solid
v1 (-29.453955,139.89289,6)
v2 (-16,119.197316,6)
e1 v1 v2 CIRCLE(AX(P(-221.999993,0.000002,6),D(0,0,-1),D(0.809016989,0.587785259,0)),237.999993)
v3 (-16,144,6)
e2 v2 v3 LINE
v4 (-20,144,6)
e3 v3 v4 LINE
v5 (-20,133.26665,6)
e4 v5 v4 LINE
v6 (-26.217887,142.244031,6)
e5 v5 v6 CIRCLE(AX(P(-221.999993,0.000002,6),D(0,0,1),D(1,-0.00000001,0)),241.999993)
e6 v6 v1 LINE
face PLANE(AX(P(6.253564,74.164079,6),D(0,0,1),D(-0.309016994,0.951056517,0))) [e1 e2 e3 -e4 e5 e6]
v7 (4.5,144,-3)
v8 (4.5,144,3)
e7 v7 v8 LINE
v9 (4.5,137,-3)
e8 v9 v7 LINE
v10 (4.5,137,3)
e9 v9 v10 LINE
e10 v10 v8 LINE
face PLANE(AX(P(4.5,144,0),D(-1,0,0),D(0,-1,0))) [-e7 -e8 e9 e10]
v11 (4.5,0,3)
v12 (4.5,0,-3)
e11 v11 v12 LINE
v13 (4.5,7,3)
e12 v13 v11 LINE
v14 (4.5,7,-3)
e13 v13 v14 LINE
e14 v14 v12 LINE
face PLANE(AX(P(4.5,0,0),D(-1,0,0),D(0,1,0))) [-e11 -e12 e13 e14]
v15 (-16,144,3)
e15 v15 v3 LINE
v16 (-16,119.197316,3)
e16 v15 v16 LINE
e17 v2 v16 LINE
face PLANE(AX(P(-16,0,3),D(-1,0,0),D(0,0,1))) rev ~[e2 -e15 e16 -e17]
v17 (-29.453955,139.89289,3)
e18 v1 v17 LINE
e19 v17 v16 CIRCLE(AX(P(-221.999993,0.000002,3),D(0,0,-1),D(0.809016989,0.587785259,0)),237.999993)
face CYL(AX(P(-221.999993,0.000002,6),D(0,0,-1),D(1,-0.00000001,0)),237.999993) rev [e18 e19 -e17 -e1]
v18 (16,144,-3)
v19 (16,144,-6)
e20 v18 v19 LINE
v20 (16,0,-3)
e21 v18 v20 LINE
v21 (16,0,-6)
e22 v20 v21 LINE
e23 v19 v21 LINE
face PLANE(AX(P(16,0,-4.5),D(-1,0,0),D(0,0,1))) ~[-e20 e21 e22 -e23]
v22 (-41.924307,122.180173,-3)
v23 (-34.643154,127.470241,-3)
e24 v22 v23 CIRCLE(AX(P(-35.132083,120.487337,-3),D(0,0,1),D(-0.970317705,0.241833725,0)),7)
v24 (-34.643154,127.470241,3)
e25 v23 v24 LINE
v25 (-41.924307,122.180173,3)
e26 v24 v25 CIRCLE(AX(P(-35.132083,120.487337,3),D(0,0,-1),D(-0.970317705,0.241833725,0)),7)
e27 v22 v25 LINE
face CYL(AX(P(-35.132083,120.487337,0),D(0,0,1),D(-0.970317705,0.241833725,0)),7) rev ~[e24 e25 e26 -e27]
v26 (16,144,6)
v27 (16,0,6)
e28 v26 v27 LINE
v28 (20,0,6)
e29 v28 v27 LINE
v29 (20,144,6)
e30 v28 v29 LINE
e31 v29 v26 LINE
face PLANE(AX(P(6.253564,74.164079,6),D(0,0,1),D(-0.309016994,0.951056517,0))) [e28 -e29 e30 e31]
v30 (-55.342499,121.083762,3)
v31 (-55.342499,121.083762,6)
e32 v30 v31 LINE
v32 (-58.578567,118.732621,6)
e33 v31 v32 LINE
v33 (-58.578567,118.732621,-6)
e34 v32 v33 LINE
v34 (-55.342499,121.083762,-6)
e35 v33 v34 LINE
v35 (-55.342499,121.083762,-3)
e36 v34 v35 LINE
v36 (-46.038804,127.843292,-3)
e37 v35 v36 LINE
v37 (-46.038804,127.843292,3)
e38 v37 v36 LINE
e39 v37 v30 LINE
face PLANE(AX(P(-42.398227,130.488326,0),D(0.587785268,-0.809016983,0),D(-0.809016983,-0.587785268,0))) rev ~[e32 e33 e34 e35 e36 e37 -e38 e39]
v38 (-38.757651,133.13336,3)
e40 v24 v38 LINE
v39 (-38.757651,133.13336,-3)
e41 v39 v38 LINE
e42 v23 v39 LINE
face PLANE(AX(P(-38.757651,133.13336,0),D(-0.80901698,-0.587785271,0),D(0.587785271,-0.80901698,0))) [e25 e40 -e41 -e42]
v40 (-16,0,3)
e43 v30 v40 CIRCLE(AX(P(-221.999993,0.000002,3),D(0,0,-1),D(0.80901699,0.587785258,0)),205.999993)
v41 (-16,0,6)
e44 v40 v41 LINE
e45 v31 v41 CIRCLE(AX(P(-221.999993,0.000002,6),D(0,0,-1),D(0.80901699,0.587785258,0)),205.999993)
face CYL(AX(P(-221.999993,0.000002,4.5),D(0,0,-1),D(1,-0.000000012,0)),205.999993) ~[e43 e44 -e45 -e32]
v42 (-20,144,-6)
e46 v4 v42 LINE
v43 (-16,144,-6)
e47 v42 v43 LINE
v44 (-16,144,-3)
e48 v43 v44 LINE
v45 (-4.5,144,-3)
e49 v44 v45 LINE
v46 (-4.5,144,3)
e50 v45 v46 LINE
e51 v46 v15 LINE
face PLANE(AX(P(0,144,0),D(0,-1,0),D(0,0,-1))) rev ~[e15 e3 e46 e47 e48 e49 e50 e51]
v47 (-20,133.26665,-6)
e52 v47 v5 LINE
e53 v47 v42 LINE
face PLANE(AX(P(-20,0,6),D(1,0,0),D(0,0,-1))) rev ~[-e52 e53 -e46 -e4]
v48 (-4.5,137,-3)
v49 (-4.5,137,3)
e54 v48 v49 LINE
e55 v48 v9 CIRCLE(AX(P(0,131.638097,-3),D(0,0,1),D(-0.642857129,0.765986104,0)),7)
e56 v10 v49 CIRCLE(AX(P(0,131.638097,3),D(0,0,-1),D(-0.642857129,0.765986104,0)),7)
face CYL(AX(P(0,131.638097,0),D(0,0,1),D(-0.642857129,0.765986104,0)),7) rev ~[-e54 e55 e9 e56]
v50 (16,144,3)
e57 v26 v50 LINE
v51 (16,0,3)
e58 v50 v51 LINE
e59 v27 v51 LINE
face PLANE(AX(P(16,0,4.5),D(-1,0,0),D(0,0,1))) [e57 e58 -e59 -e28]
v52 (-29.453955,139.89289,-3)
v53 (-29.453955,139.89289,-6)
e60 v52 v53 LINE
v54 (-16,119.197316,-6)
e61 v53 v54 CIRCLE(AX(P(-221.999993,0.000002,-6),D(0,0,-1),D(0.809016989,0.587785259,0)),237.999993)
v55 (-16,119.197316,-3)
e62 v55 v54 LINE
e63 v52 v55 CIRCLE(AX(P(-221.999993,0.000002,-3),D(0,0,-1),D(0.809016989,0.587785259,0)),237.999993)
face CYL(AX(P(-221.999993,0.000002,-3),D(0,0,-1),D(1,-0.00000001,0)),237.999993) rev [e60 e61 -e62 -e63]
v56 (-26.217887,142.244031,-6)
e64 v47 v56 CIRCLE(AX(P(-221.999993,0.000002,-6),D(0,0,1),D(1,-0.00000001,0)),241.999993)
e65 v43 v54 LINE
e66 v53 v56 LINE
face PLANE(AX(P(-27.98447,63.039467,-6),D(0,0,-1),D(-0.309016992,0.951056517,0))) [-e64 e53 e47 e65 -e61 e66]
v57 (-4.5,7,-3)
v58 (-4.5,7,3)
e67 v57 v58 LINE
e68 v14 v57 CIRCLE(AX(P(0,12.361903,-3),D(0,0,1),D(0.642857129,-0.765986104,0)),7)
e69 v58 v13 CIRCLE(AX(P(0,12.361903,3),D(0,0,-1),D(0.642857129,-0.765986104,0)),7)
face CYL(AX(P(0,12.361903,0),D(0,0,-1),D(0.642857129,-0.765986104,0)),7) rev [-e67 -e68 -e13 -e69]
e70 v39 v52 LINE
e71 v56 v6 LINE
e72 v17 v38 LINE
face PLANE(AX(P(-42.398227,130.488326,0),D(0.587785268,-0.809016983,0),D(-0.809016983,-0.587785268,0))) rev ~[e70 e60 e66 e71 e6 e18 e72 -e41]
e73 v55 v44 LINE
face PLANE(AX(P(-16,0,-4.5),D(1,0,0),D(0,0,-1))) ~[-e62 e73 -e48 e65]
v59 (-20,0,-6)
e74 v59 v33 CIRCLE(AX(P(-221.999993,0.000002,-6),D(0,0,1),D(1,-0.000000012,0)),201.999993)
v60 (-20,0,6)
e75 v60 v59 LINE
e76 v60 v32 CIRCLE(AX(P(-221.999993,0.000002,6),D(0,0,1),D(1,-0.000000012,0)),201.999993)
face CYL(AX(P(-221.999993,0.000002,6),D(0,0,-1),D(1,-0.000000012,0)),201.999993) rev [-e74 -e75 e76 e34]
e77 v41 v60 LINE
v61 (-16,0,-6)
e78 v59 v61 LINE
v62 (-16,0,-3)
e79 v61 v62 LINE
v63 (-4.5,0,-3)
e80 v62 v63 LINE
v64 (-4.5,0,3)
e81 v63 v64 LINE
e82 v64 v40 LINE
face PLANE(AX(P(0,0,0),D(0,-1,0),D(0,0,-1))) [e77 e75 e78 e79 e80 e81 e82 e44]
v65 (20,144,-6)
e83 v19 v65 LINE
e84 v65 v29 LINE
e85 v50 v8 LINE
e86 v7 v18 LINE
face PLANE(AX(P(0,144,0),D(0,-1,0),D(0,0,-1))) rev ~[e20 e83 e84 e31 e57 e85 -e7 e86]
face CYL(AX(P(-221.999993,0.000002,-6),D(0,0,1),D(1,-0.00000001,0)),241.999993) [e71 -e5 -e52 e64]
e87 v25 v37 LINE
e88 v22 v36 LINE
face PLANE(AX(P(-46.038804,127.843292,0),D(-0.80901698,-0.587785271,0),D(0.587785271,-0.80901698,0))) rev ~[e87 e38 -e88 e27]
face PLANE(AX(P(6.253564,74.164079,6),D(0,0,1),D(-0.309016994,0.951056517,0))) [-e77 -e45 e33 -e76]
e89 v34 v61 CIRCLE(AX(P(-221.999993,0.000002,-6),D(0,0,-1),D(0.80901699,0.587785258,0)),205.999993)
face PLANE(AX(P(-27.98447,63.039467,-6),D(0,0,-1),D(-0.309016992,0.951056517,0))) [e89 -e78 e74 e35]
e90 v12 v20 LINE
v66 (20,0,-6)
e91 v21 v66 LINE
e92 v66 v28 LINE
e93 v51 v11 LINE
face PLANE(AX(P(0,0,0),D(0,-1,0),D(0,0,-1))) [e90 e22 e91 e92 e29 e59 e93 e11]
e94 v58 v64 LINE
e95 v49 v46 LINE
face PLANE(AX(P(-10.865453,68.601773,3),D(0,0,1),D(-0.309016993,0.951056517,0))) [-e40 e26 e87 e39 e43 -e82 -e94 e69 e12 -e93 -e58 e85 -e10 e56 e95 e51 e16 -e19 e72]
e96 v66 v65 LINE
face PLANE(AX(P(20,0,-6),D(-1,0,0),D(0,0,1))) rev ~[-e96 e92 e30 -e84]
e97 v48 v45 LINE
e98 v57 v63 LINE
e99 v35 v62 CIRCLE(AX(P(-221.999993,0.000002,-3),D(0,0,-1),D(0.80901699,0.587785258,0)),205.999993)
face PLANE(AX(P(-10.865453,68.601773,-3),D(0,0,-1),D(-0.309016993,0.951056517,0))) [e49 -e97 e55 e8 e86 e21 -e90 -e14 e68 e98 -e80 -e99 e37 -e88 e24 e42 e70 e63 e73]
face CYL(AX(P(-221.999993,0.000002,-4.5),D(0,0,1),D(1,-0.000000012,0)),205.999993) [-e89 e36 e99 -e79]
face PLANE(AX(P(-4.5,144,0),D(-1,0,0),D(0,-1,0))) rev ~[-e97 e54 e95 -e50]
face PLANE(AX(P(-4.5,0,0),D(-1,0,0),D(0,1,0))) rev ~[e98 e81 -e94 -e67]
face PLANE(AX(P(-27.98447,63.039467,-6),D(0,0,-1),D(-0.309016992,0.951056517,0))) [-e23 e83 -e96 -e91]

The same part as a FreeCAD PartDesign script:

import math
import FreeCAD as App
import Part
import Sketcher
Q = App.Units.Quantity


def add_polygon(sketch, points):
    """Adds a closed chain of lines whose ends are joined by coincident constraints."""
    first, n = sketch.GeometryCount, len(points)
    for a, b in zip(points, points[1:] + points[:1]):
        sketch.addGeometry(Part.LineSegment(App.Vector(*a, 0), App.Vector(*b, 0)), False)
    for i in range(n):
        sketch.addConstraint(Sketcher.Constraint("Coincident", first + i, 2, first + (i + 1) % n, 1))

doc = App.newDocument("Part")
body = doc.addObject("PartDesign::Body", "Body")

sketch1 = doc.addObject("Sketcher::SketchObject", "Sketch")
body.addObject(sketch1)
sketch1.AttachmentSupport = (doc.XZ_Plane, [""])
sketch1.MapMode = "FlatFace"
add_polygon(sketch1, [(-20, 6), (-20, -6), (-16, -6), (-16, -3), (16, -3), (16, -6), (20, -6), (20, 6), (16, 6), (16, 3), (-16, 3), (-16, 6)])
sketch1.addConstraint(Sketcher.Constraint("Vertical", 0))
sketch1.addConstraint(Sketcher.Constraint("Horizontal", 1))
sketch1.addConstraint(Sketcher.Constraint("Vertical", 2))
sketch1.addConstraint(Sketcher.Constraint("Horizontal", 3))
sketch1.addConstraint(Sketcher.Constraint("Vertical", 4))
sketch1.addConstraint(Sketcher.Constraint("Horizontal", 5))
sketch1.addConstraint(Sketcher.Constraint("Vertical", 6))
sketch1.addConstraint(Sketcher.Constraint("Horizontal", 7))
sketch1.addConstraint(Sketcher.Constraint("Vertical", 8))
sketch1.addConstraint(Sketcher.Constraint("Horizontal", 9))
sketch1.addConstraint(Sketcher.Constraint("Vertical", 10))
sketch1.addConstraint(Sketcher.Constraint("Horizontal", 11))
sketch1.addConstraint(Sketcher.Constraint("Symmetric", 0, 2, 6, 2, -1, 1))
sketch1.addConstraint(Sketcher.Constraint("Symmetric", 2, 2, 8, 2, -1, 1))
sketch1.addConstraint(Sketcher.Constraint("Symmetric", 4, 2, 10, 2, -1, 1))
sketch1.addConstraint(Sketcher.Constraint("Symmetric", 1, 2, 4, 2, -2))
sketch1.addConstraint(Sketcher.Constraint("DistanceX", 1, 1, 1, 2, 4.0))
sketch1.addConstraint(Sketcher.Constraint("DistanceX", 3, 1, 3, 2, 32.0))
sketch1.addConstraint(Sketcher.Constraint("DistanceY", 0, 2, 0, 1, 12.0))
sketch1.addConstraint(Sketcher.Constraint("DistanceY", 2, 1, 2, 2, 3.0))

sketch2 = doc.addObject("Sketcher::SketchObject", "Sketch001")
body.addObject(sketch2)
sketch2.AttachmentSupport = (doc.XY_Plane, [""])
sketch2.MapMode = "FlatFace"
sketch2.addGeometry(Part.ArcOfCircle(Part.Circle(App.Vector(-222, 0, 0), App.Vector(0, 0, 1), 222), math.radians(0), math.radians(36)), False)
sketch2.addConstraint(Sketcher.Constraint("Coincident", 0, 1, -1, 1))
sketch2.addConstraint(Sketcher.Constraint("Radius", 0, 221.999993))
sketch2.addConstraint(Sketcher.Constraint("DistanceX", 0, 2, -1, 1, 42.398227))
sketch2.addConstraint(Sketcher.Constraint("DistanceY", -1, 1, 0, 2, 130.488326))
doc.recompute()

additivepipe = doc.addObject("PartDesign::AdditivePipe", "AdditivePipe")
body.addObject(additivepipe)
additivepipe.Profile = sketch1
additivepipe.Spine = (sketch2, ["Edge1"])

sketch3 = doc.addObject("Sketcher::SketchObject", "Sketch002")
body.addObject(sketch3)
sketch3.AttachmentSupport = (doc.XZ_Plane, [""])
sketch3.MapMode = "FlatFace"
add_polygon(sketch3, [(-20, 6), (-20, -6), (-16, -6), (-16, -3), (16, -3), (16, -6), (20, -6), (20, 6), (16, 6), (16, 3), (-16, 3), (-16, 6)])
sketch3.addConstraint(Sketcher.Constraint("Vertical", 0))
sketch3.addConstraint(Sketcher.Constraint("Horizontal", 1))
sketch3.addConstraint(Sketcher.Constraint("Vertical", 2))
sketch3.addConstraint(Sketcher.Constraint("Horizontal", 3))
sketch3.addConstraint(Sketcher.Constraint("Vertical", 4))
sketch3.addConstraint(Sketcher.Constraint("Horizontal", 5))
sketch3.addConstraint(Sketcher.Constraint("Vertical", 6))
sketch3.addConstraint(Sketcher.Constraint("Horizontal", 7))
sketch3.addConstraint(Sketcher.Constraint("Vertical", 8))
sketch3.addConstraint(Sketcher.Constraint("Horizontal", 9))
sketch3.addConstraint(Sketcher.Constraint("Vertical", 10))
sketch3.addConstraint(Sketcher.Constraint("Horizontal", 11))
sketch3.addConstraint(Sketcher.Constraint("Symmetric", 0, 2, 6, 2, -1, 1))
sketch3.addConstraint(Sketcher.Constraint("Symmetric", 2, 2, 8, 2, -1, 1))
sketch3.addConstraint(Sketcher.Constraint("Symmetric", 4, 2, 10, 2, -1, 1))
sketch3.addConstraint(Sketcher.Constraint("Symmetric", 1, 2, 4, 2, -2))
sketch3.addConstraint(Sketcher.Constraint("DistanceX", 1, 1, 1, 2, 4.0))
sketch3.addConstraint(Sketcher.Constraint("DistanceX", 3, 1, 3, 2, 32.0))
sketch3.addConstraint(Sketcher.Constraint("DistanceY", 0, 2, 0, 1, 12.0))
sketch3.addConstraint(Sketcher.Constraint("DistanceY", 2, 1, 2, 2, 3.0))

sketch4 = doc.addObject("Sketcher::SketchObject", "Sketch003")
body.addObject(sketch4)
sketch4.AttachmentSupport = (doc.XY_Plane, [""])
sketch4.MapMode = "FlatFace"
sketch4.addGeometry(Part.LineSegment(App.Vector(0, 0, 0), App.Vector(0, 144, 0)), False)
sketch4.addConstraint(Sketcher.Constraint("Vertical", 0))
sketch4.addConstraint(Sketcher.Constraint("Coincident", 0, 1, -1, 1))
sketch4.addConstraint(Sketcher.Constraint("DistanceY", 0, 1, 0, 2, 144.0))
doc.recompute()

additivepipe2 = doc.addObject("PartDesign::AdditivePipe", "AdditivePipe001")
body.addObject(additivepipe2)
additivepipe2.Profile = sketch3
additivepipe2.Spine = (sketch4, ["Edge1"])

sketch5 = doc.addObject("Sketcher::SketchObject", "Sketch004")
body.addObject(sketch5)
sketch5.AttachmentSupport = (doc.XZ_Plane, [""])
sketch5.MapMode = "FlatFace"
add_polygon(sketch5, [(-16, 6), (-16, 3), (16, 3), (16, 6)])
sketch5.addConstraint(Sketcher.Constraint("Vertical", 0))
sketch5.addConstraint(Sketcher.Constraint("Horizontal", 1))
sketch5.addConstraint(Sketcher.Constraint("Vertical", 2))
sketch5.addConstraint(Sketcher.Constraint("Horizontal", 3))
sketch5.addConstraint(Sketcher.Constraint("DistanceX", 1, 1, 1, 2, 32.0))
sketch5.addConstraint(Sketcher.Constraint("DistanceY", 0, 2, 0, 1, 3.0))
sketch5.addConstraint(Sketcher.Constraint("DistanceX", 0, 2, -1, 1, 16.0))
sketch5.addConstraint(Sketcher.Constraint("DistanceY", -1, 1, 0, 2, 3.0))

sketch6 = doc.addObject("Sketcher::SketchObject", "Sketch005")
body.addObject(sketch6)
sketch6.AttachmentSupport = (doc.XY_Plane, [""])
sketch6.MapMode = "FlatFace"
sketch6.addGeometry(Part.ArcOfCircle(Part.Circle(App.Vector(-222, 0, 0), App.Vector(0, 0, 1), 222), math.radians(0), math.radians(36)), False)
sketch6.addConstraint(Sketcher.Constraint("Coincident", 0, 1, -1, 1))
sketch6.addConstraint(Sketcher.Constraint("Radius", 0, 221.999993))
sketch6.addConstraint(Sketcher.Constraint("DistanceX", 0, 2, -1, 1, 42.398227))
sketch6.addConstraint(Sketcher.Constraint("DistanceY", -1, 1, 0, 2, 130.488326))
doc.recompute()

subtractivepipe = doc.addObject("PartDesign::SubtractivePipe", "SubtractivePipe")
body.addObject(subtractivepipe)
subtractivepipe.Profile = sketch5
subtractivepipe.Spine = (sketch6, ["Edge1"])

sketch7 = doc.addObject("Sketcher::SketchObject", "Sketch006")
body.addObject(sketch7)
sketch7.AttachmentSupport = (doc.XZ_Plane, [""])
sketch7.MapMode = "FlatFace"
add_polygon(sketch7, [(-16, 6), (-16, 3), (16, 3), (16, 6)])
sketch7.addConstraint(Sketcher.Constraint("Vertical", 0))
sketch7.addConstraint(Sketcher.Constraint("Horizontal", 1))
sketch7.addConstraint(Sketcher.Constraint("Vertical", 2))
sketch7.addConstraint(Sketcher.Constraint("Horizontal", 3))
sketch7.addConstraint(Sketcher.Constraint("DistanceX", 1, 1, 1, 2, 32.0))
sketch7.addConstraint(Sketcher.Constraint("DistanceY", 0, 2, 0, 1, 3.0))
sketch7.addConstraint(Sketcher.Constraint("DistanceX", 0, 2, -1, 1, 16.0))
sketch7.addConstraint(Sketcher.Constraint("DistanceY", -1, 1, 0, 2, 3.0))

sketch8 = doc.addObject("Sketcher::SketchObject", "Sketch007")
body.addObject(sketch8)
sketch8.AttachmentSupport = (doc.XY_Plane, [""])
sketch8.MapMode = "FlatFace"
sketch8.addGeometry(Part.LineSegment(App.Vector(0, 0, 0), App.Vector(0, 144, 0)), False)
sketch8.addConstraint(Sketcher.Constraint("Vertical", 0))
sketch8.addConstraint(Sketcher.Constraint("Coincident", 0, 1, -1, 1))
sketch8.addConstraint(Sketcher.Constraint("DistanceY", 0, 1, 0, 2, 144.0))
doc.recompute()

subtractivepipe2 = doc.addObject("PartDesign::SubtractivePipe", "SubtractivePipe001")
body.addObject(subtractivepipe2)
subtractivepipe2.Profile = sketch7
subtractivepipe2.Spine = (sketch8, ["Edge1"])
doc.recompute()

mirrored = doc.addObject("PartDesign::Mirrored", "Mirrored")
body.addObject(mirrored)
mirrored.Originals = [subtractivepipe]
mirrored.MirrorPlane = (doc.XY_Plane, [""])
body.Tip = mirrored
doc.recompute()

mirrored2 = doc.addObject("PartDesign::Mirrored", "Mirrored001")
body.addObject(mirrored2)
mirrored2.Originals = [subtractivepipe2]
mirrored2.MirrorPlane = (doc.XY_Plane, [""])
body.Tip = mirrored2

sketch9 = doc.addObject("Sketcher::SketchObject", "Sketch008")
body.addObject(sketch9)
sketch9.AttachmentSupport = (doc.XY_Plane, [""])
sketch9.MapMode = "FlatFace"
sketch9.addGeometry(Part.LineSegment(App.Vector(-4, 0, 0), App.Vector(4, 0, 0)), False)
sketch9.addGeometry(Part.LineSegment(App.Vector(4, 0, 0), App.Vector(4, 7, 0)), False)
sketch9.addGeometry(Part.ArcOfCircle(Part.Circle(App.Vector(0, 12, 0), App.Vector(0, 0, 1), 7), math.radians(-50), math.radians(230)), False)
sketch9.addGeometry(Part.LineSegment(App.Vector(-4, 7, 0), App.Vector(-4, 0, 0)), False)
sketch9.addConstraint(Sketcher.Constraint("Coincident", 0, 2, 1, 1))
sketch9.addConstraint(Sketcher.Constraint("Coincident", 1, 2, 2, 1))
sketch9.addConstraint(Sketcher.Constraint("Coincident", 2, 2, 3, 1))
sketch9.addConstraint(Sketcher.Constraint("Coincident", 3, 2, 0, 1))
sketch9.addConstraint(Sketcher.Constraint("Horizontal", 0))
sketch9.addConstraint(Sketcher.Constraint("Vertical", 1))
sketch9.addConstraint(Sketcher.Constraint("Vertical", 3))
sketch9.addConstraint(Sketcher.Constraint("Symmetric", 0, 2, 3, 2, -1, 1))
sketch9.addConstraint(Sketcher.Constraint("PointOnObject", 2, 3, -2))
sketch9.addConstraint(Sketcher.Constraint("Radius", 2, 7.0))
sketch9.addConstraint(Sketcher.Constraint("DistanceX", 0, 1, 0, 2, 9.0))
sketch9.addConstraint(Sketcher.Constraint("DistanceY", 1, 1, 1, 2, 7.0))
pocket1 = doc.addObject("PartDesign::Pocket", "Pocket")
body.addObject(pocket1)
pocket1.Profile = sketch9
pocket1.Type = "ThroughAll"
pocket1.Midplane = True

sketch10 = doc.addObject("Sketcher::SketchObject", "Sketch009")
body.addObject(sketch10)
sketch10.AttachmentSupport = (doc.XY_Plane, [""])
sketch10.MapMode = "FlatFace"
sketch10.addGeometry(Part.LineSegment(App.Vector(-39, 133, 0), App.Vector(-46, 128, 0)), False)
sketch10.addGeometry(Part.LineSegment(App.Vector(-46, 128, 0), App.Vector(-42, 122, 0)), False)
sketch10.addGeometry(Part.ArcOfCircle(Part.Circle(App.Vector(-35, 120, 0), App.Vector(0, 0, 1), 7), math.radians(166), math.radians(446)), False)
sketch10.addGeometry(Part.LineSegment(App.Vector(-35, 127, 0), App.Vector(-39, 133, 0)), False)
sketch10.addConstraint(Sketcher.Constraint("Coincident", 0, 2, 1, 1))
sketch10.addConstraint(Sketcher.Constraint("Coincident", 1, 2, 2, 1))
sketch10.addConstraint(Sketcher.Constraint("Coincident", 2, 2, 3, 1))
sketch10.addConstraint(Sketcher.Constraint("Coincident", 3, 2, 0, 1))
sketch10.addConstraint(Sketcher.Constraint("Perpendicular", 0, 1))
sketch10.addConstraint(Sketcher.Constraint("Parallel", 1, 3))
sketch10.addConstraint(Sketcher.Constraint("Equal", 1, 3))
sketch10.addConstraint(Sketcher.Constraint("Radius", 2, 7.0))
sketch10.addConstraint(Sketcher.Constraint("Angle", 0, Q("-143.999996 deg")))
sketch10.addConstraint(Sketcher.Constraint("Distance", 0, 9.0))
sketch10.addConstraint(Sketcher.Constraint("Distance", 1, 7.0))
sketch10.addConstraint(Sketcher.Constraint("DistanceY", -1, 1, 2, 2, 127.470241))
sketch10.addConstraint(Sketcher.Constraint("DistanceX", 3, 2, -1, 1, 38.757651))
pocket2 = doc.addObject("PartDesign::Pocket", "Pocket001")
body.addObject(pocket2)
pocket2.Profile = sketch10
pocket2.Type = "ThroughAll"
pocket2.Midplane = True

sketch11 = doc.addObject("Sketcher::SketchObject", "Sketch010")
body.addObject(sketch11)
sketch11.AttachmentSupport = (doc.XY_Plane, [""])
sketch11.MapMode = "FlatFace"
sketch11.addGeometry(Part.LineSegment(App.Vector(4, 144, 0), App.Vector(-4, 144, 0)), False)
sketch11.addGeometry(Part.LineSegment(App.Vector(-4, 144, 0), App.Vector(-4, 137, 0)), False)
sketch11.addGeometry(Part.ArcOfCircle(Part.Circle(App.Vector(0, 132, 0), App.Vector(0, 0, 1), 7), math.radians(130), math.radians(410)), False)
sketch11.addGeometry(Part.LineSegment(App.Vector(4, 137, 0), App.Vector(4, 144, 0)), False)
sketch11.addConstraint(Sketcher.Constraint("Coincident", 0, 2, 1, 1))
sketch11.addConstraint(Sketcher.Constraint("Coincident", 1, 2, 2, 1))
sketch11.addConstraint(Sketcher.Constraint("Coincident", 2, 2, 3, 1))
sketch11.addConstraint(Sketcher.Constraint("Coincident", 3, 2, 0, 1))
sketch11.addConstraint(Sketcher.Constraint("Horizontal", 0))
sketch11.addConstraint(Sketcher.Constraint("Vertical", 1))
sketch11.addConstraint(Sketcher.Constraint("Vertical", 3))
sketch11.addConstraint(Sketcher.Constraint("Symmetric", 1, 2, 2, 2, -2))
sketch11.addConstraint(Sketcher.Constraint("Radius", 2, 7.0))
sketch11.addConstraint(Sketcher.Constraint("DistanceX", 0, 2, 0, 1, 9.0))
sketch11.addConstraint(Sketcher.Constraint("DistanceY", 1, 2, 1, 1, 7.0))
sketch11.addConstraint(Sketcher.Constraint("DistanceY", -1, 1, 0, 2, 144.0))
pocket3 = doc.addObject("PartDesign::Pocket", "Pocket002")
body.addObject(pocket3)
pocket3.Profile = sketch11
pocket3.Type = "ThroughAll"
pocket3.Midplane = True

doc.recompute()
